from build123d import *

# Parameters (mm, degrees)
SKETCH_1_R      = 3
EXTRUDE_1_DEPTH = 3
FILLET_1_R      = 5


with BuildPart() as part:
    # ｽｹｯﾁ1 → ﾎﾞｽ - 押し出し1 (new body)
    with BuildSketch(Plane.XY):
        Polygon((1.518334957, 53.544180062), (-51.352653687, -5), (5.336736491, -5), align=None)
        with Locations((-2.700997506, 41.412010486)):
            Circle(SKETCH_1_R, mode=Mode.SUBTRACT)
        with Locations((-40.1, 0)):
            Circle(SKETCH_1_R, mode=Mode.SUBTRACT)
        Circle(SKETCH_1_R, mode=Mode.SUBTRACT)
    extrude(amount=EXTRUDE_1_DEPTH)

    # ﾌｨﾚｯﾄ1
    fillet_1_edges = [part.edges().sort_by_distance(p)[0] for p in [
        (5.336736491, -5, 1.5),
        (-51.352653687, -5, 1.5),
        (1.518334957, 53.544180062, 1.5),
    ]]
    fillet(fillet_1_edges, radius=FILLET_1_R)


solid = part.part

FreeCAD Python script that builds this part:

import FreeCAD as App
import Part
import Sketcher

V = App.Vector
Q = App.Units.Quantity


def edges_at(feature, points):
    """Names of the edges that pass closest to the given points."""
    edges = feature.Shape.Edges
    near = lambda p: min(range(len(edges)), key=lambda i: edges[i].distToShape(Part.Vertex(*p))[0])
    return sorted({f"Edge{near(p) + 1}" for p in points})


def add_polygon(sketch, points):
    """Adds a closed chain of lines whose ends are joined by coincident constraints."""
    first, n = sketch.GeometryCount, len(points)
    for a, b in zip(points, points[1:] + points[:1]):
        sketch.addGeometry(Part.LineSegment(App.Vector(*a, 0), App.Vector(*b, 0)), False)
    for i in range(n):
        sketch.addConstraint(Sketcher.Constraint("Coincident", first + i, 2, first + (i + 1) % n, 1))

doc = App.newDocument("Part")
body = doc.addObject("PartDesign::Body", "Body")

# Sketch on XY plane
sketch1 = body.newObject("Sketcher::SketchObject", "Sketch")
sketch1.AttachmentSupport = (doc.getObject("XY_Plane"), [""])
sketch1.MapMode = "FlatFace"
add_polygon(sketch1, [(1.5, 53.5), (-51.4, -5), (5.3, -5)])  # lines 0-2
sketch1.addGeometry(Part.Circle(V(-40.1, 0, 0), V(0, 0, 1), 3), False)  # 3
sketch1.addGeometry(Part.Circle(V(0, 0, 0), V(0, 0, 1), 3), False)  # 4
sketch1.addGeometry(Part.Circle(V(-2.7, 41.4, 0), V(0, 0, 1), 3), False)  # 5
sketch1.addConstraint(Sketcher.Constraint("Horizontal", 1))
sketch1.addConstraint(Sketcher.Constraint("Coincident", 4, 3, -1, 1))
sketch1.addConstraint(Sketcher.Constraint("Equal", 3, 4))
sketch1.addConstraint(Sketcher.Constraint("Equal", 4, 5))
sketch1.addConstraint(Sketcher.Constraint("PointOnObject", 3, 3, -1))
sketch1.addConstraint(Sketcher.Constraint("Diameter", 3, Q("6 mm")))
sketch1.addConstraint(Sketcher.Constraint("DistanceY", 0, 2, -1, 1, Q("5 mm")))
sketch1.addConstraint(Sketcher.Constraint("DistanceX", 3, 3, -1, 1, Q("40.1 mm")))
sketch1.addConstraint(Sketcher.Constraint("DistanceX", 1, 1, 1, 2, Q("56.68939 mm")))
sketch1.addConstraint(Sketcher.Constraint("DistanceX", 2, 2, 1, 2, Q("3.818402 mm")))
sketch1.addConstraint(Sketcher.Constraint("Distance", 0, Q("78.884488 mm")))
sketch1.addConstraint(Sketcher.Constraint("DistanceY", -1, 1, 5, 3, Q("41.41201 mm")))
sketch1.addConstraint(Sketcher.Constraint("DistanceX", 5, 3, -1, 1, Q("2.700998 mm")))
sketch1.addConstraint(Sketcher.Constraint("DistanceX", 0, 2, -1, 1, Q("51.352654 mm")))
pad1 = body.newObject("PartDesign::Pad", "Pad")
pad1.Profile = sketch1
pad1.Length = 3
doc.recompute()

fillet = body.newObject("PartDesign::Fillet", "Fillet")
fillet.Base = (pad1, edges_at(pad1, [(5.337, -5, 1.5), (-51.353, -5, 1.5), (1.518, 53.544, 1.5)]))
fillet.Radius = 5

doc.recompute()
